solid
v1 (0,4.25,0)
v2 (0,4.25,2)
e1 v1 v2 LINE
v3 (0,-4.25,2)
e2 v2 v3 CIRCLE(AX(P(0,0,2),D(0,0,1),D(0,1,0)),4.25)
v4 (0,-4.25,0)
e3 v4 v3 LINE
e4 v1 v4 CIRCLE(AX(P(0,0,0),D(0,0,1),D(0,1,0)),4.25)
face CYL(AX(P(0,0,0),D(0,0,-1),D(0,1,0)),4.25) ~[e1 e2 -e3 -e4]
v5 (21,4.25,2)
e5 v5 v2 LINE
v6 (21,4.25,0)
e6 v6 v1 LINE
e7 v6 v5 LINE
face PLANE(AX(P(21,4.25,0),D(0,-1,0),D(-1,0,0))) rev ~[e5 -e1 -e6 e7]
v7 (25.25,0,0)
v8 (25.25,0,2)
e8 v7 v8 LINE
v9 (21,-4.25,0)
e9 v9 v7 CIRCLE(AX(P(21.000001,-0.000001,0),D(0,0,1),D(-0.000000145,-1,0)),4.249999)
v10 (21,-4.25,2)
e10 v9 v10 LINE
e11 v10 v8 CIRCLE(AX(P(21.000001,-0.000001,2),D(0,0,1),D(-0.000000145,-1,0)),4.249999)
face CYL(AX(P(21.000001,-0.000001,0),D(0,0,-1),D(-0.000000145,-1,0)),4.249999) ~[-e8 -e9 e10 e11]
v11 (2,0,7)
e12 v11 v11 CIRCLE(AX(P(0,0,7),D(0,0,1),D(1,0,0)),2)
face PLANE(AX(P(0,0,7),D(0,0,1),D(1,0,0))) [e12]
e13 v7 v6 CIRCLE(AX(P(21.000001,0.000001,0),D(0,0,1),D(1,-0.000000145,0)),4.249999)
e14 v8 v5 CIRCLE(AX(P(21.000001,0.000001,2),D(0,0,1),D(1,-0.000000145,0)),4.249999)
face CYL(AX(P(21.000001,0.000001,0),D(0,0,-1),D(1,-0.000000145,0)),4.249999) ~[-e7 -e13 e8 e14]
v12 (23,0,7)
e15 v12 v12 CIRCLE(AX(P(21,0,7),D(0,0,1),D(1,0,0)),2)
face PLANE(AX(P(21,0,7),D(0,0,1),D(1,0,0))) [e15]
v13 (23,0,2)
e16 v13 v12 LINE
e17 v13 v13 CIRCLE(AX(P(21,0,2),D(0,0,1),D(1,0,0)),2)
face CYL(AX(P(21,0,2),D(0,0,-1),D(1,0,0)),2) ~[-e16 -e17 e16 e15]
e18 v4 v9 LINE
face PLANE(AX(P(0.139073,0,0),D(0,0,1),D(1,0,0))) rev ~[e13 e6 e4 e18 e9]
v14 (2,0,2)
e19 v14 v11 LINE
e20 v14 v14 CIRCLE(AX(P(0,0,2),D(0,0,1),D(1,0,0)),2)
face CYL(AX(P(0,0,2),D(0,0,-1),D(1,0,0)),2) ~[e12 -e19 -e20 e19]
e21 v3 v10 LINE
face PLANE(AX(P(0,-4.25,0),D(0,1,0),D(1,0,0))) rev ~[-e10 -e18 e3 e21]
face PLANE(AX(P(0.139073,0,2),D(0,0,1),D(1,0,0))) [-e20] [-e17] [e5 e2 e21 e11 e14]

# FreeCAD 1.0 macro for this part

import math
import FreeCAD as App
import Part
import Sketcher

V = App.Vector

doc = App.newDocument("Part")
params = doc.addObject("Spreadsheet::Sheet", "Params")
for row, (alias, value) in enumerate([
    ("sketch1_width", "21 mm"),
    ("sketch1_radius", "4.25 mm"),
    ("pad1_length", "2 mm"),
    ("sketch2_diameter", "4 mm"),
    ("pad2_length", "5 mm"),
], start=1):
    params.set(f"A{row}", alias)
    params.set(f"B{row}", "=" + value)
    params.setAlias(f"B{row}", alias)

body = doc.addObject("PartDesign::Body", "Body")

# Sketch on XY plane
sketch1 = doc.addObject("Sketcher::SketchObject", "Sketch")
body.addObject(sketch1)
sketch1.AttachmentSupport = (doc.XY_Plane, [""])
sketch1.MapMode = "FlatFace"
sketch1.addGeometry([
    Part.ArcOfCircle(Part.Circle(V(0, 0, 0), V(0, 0, 1), 4.2), math.radians(90), math.radians(270)),  # 0
    Part.LineSegment(V(0, -4.2, 0), V(21, -4.2, 0)),  # 1
    Part.ArcOfCircle(Part.Circle(V(21, 0, 0), V(0, 0, 1), 4.2), math.radians(-90), math.radians(0)),  # 2
    Part.ArcOfCircle(Part.Circle(V(21, 0, 0), V(0, 0, 1), 4.2), math.radians(0), math.radians(90)),  # 3
    Part.LineSegment(V(21, 4.2, 0), V(0, 4.2, 0)),  # 4
], False)
sketch1.addConstraint([
    Sketcher.Constraint("Tangent", 0, 2, 1, 1),
    Sketcher.Constraint("Tangent", 1, 2, 2, 1),
    Sketcher.Constraint("Tangent", 2, 2, 3, 1),
    Sketcher.Constraint("Tangent", 3, 2, 4, 1),
    Sketcher.Constraint("Tangent", 4, 2, 0, 1),
    Sketcher.Constraint("Horizontal", 1),
    Sketcher.Constraint("Horizontal", 4),
    Sketcher.Constraint("Coincident", 0, 3, -1, 1),
    Sketcher.Constraint("Equal", 0, 2),
    Sketcher.Constraint("PointOnObject", 2, 2, -1),
    Sketcher.Constraint("DistanceX", 1, 1, 1, 2, 21.0),
    Sketcher.Constraint("Radius", 0, 4.25),
])
sketch1.setExpression("Constraints[10]", "Params.sketch1_width")
sketch1.setExpression("Constraints[11]", "Params.sketch1_radius")
pad1 = doc.addObject("PartDesign::Pad", "Pad")
body.addObject(pad1)
pad1.Profile = sketch1
pad1.setExpression("Length", "Params.pad1_length")

# Sketch on XY plane
sketch2 = doc.addObject("Sketcher::SketchObject", "Sketch001")
body.addObject(sketch2)
sketch2.AttachmentSupport = (doc.XY_Plane, [""])
sketch2.MapMode = "FlatFace"
sketch2.AttachmentOffset = App.Placement(V(0, 0, 2), App.Rotation())
sketch2.addGeometry([
    Part.Circle(V(0, 0, 0), V(0, 0, 1), 2),
    Part.Circle(V(21, 0, 0), V(0, 0, 1), 2),
], False)
sketch2.addConstraint([
    Sketcher.Constraint("Coincident", 0, 3, -1, 1),
    Sketcher.Constraint("Equal", 0, 1),
    Sketcher.Constraint("PointOnObject", 1, 3, -1),
    Sketcher.Constraint("Diameter", 0, 4.0),
    Sketcher.Constraint("DistanceX", -1, 1, 1, 3, 21.0),
])
sketch2.setExpression("Constraints[3]", "Params.sketch2_diameter")
pad2 = doc.addObject("PartDesign::Pad", "Pad001")
body.addObject(pad2)
pad2.Profile = sketch2
pad2.setExpression("Length", "Params.pad2_length")

doc.recompute()
